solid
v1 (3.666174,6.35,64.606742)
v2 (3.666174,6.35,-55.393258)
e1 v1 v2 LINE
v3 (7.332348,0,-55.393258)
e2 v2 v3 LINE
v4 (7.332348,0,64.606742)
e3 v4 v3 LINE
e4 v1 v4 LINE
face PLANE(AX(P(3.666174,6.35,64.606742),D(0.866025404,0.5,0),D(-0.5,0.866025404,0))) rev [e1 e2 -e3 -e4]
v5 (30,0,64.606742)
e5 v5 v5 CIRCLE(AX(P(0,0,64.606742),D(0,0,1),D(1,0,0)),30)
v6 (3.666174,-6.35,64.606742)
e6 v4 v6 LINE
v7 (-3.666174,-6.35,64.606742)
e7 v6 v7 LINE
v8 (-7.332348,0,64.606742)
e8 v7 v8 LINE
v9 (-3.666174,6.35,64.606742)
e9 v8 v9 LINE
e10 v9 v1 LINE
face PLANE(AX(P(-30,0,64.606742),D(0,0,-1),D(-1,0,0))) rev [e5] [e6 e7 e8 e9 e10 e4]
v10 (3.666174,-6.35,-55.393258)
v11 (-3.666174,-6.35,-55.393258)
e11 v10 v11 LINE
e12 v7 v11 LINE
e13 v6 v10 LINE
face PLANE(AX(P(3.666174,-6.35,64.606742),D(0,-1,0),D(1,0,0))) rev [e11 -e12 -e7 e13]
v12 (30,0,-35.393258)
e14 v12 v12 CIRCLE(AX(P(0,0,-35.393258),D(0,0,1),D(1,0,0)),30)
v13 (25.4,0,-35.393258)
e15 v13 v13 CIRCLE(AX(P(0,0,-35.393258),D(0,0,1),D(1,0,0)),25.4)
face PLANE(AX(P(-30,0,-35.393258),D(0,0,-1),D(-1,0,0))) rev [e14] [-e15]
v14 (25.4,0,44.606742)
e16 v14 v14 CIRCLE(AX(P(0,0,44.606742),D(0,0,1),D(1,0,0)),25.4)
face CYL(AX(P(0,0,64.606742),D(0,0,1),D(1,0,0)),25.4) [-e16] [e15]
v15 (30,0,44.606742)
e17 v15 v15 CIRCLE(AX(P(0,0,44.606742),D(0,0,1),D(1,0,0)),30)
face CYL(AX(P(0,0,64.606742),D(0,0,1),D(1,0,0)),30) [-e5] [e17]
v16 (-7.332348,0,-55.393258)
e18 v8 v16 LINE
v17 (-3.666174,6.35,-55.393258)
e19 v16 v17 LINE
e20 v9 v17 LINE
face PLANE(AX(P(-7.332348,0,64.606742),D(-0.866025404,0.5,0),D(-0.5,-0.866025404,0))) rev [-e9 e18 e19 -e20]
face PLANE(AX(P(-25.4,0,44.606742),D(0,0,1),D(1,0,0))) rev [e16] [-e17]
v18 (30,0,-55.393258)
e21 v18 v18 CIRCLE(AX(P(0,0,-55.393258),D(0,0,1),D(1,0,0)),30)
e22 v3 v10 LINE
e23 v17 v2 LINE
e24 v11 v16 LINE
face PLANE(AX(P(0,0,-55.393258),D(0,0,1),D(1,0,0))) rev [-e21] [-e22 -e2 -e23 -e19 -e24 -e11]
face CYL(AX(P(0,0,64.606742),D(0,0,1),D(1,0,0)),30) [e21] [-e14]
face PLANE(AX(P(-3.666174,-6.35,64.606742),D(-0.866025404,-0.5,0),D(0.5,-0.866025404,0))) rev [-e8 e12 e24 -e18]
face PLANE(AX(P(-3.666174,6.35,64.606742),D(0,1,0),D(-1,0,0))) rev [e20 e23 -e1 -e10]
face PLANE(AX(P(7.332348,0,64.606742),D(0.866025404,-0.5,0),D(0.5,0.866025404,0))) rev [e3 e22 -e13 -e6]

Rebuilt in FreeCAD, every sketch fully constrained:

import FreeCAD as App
import Part
import Sketcher
from FreeCAD import Vector
Q = App.Units.Quantity

doc = App.newDocument("Part")
body = doc.addObject("PartDesign::Body", "Body")

# Sketch on XZ plane
sketch1 = body.newObject("Sketcher::SketchObject", "Sketch")
sketch1.AttachmentSupport = (doc.getObject("XZ_Plane"), [""])
sketch1.MapMode = "FlatFace"
sketch1.addGeometry(Part.LineSegment(Vector(0, -55.4, 0), Vector(-30, -55.4, 0)), False)
sketch1.addGeometry(Part.LineSegment(Vector(-30, -55.4, 0), Vector(-30, -35.4, 0)), False)
sketch1.addGeometry(Part.LineSegment(Vector(-30, -35.4, 0), Vector(-25.4, -35.4, 0)), False)
sketch1.addGeometry(Part.LineSegment(Vector(-25.4, -35.4, 0), Vector(-25.4, 44.6, 0)), False)
sketch1.addGeometry(Part.LineSegment(Vector(-25.4, 44.6, 0), Vector(-30, 44.6, 0)), False)
sketch1.addGeometry(Part.LineSegment(Vector(-30, 44.6, 0), Vector(-30, 64.6, 0)), False)
sketch1.addGeometry(Part.LineSegment(Vector(-30, 64.6, 0), Vector(0, 64.6, 0)), False)
sketch1.addGeometry(Part.LineSegment(Vector(0, 64.6, 0), Vector(0, -55.4, 0)), False)
sketch1.addConstraint(Sketcher.Constraint("Coincident", 0, 2, 1, 1))
sketch1.addConstraint(Sketcher.Constraint("Coincident", 1, 2, 2, 1))
sketch1.addConstraint(Sketcher.Constraint("Coincident", 2, 2, 3, 1))
sketch1.addConstraint(Sketcher.Constraint("Coincident", 3, 2, 4, 1))
sketch1.addConstraint(Sketcher.Constraint("Coincident", 4, 2, 5, 1))
sketch1.addConstraint(Sketcher.Constraint("Coincident", 5, 2, 6, 1))
sketch1.addConstraint(Sketcher.Constraint("Coincident", 6, 2, 7, 1))
sketch1.addConstraint(Sketcher.Constraint("Coincident", 7, 2, 0, 1))
sketch1.addConstraint(Sketcher.Constraint("Horizontal", 0))
sketch1.addConstraint(Sketcher.Constraint("Vertical", 1))
sketch1.addConstraint(Sketcher.Constraint("Horizontal", 2))
sketch1.addConstraint(Sketcher.Constraint("Vertical", 3))
sketch1.addConstraint(Sketcher.Constraint("Horizontal", 4))
sketch1.addConstraint(Sketcher.Constraint("Vertical", 5))
sketch1.addConstraint(Sketcher.Constraint("Horizontal", 6))
sketch1.addConstraint(Sketcher.Constraint("Vertical", 7))
sketch1.addConstraint(Sketcher.Constraint("PointOnObject", 6, 2, -2))
sketch1.addConstraint(Sketcher.Constraint("Vertical", 1, 2, 4, 2))
sketch1.addConstraint(Sketcher.Constraint("Equal", 1, 5))
sketch1.addConstraint(Sketcher.Constraint("DistanceX", 0, 2, 0, 1, Q("30 mm")))
sketch1.addConstraint(Sketcher.Constraint("DistanceY", 1, 1, 1, 2, Q("20 mm")))
sketch1.addConstraint(Sketcher.Constraint("DistanceY", 3, 1, 3, 2, Q("80 mm")))
sketch1.addConstraint(Sketcher.Constraint("DistanceX", 2, 1, 2, 2, Q("4.6 mm")))
sketch1.addConstraint(Sketcher.Constraint("DistanceY", 0, 2, -1, 1, Q("55.393258 mm")))
revolution = body.newObject("PartDesign::Revolution", "Revolution")
revolution.Profile = sketch1
revolution.ReferenceAxis = (sketch1, ["V_Axis"])
revolution.Angle = 360

# Sketch on XY plane
sketch2 = body.newObject("Sketcher::SketchObject", "Sketch001")
sketch2.AttachmentSupport = (doc.getObject("XY_Plane"), [""])
sketch2.MapMode = "FlatFace"
sketch2.AttachmentOffset = App.Placement(Vector(0, 0, -55.393258), App.Rotation())
sketch2.addGeometry(Part.LineSegment(Vector(-7, 0, 0), Vector(-4, 6, 0)), False)
sketch2.addGeometry(Part.LineSegment(Vector(-4, 6, 0), Vector(4, 6, 0)), False)
sketch2.addGeometry(Part.LineSegment(Vector(4, 6, 0), Vector(7, 0, 0)), False)
sketch2.addGeometry(Part.LineSegment(Vector(7, 0, 0), Vector(4, -6, 0)), False)
sketch2.addGeometry(Part.LineSegment(Vector(4, -6, 0), Vector(-4, -6, 0)), False)
sketch2.addGeometry(Part.LineSegment(Vector(-4, -6, 0), Vector(-7, 0, 0)), False)
sketch2.addConstraint(Sketcher.Constraint("Coincident", 0, 2, 1, 1))
sketch2.addConstraint(Sketcher.Constraint("Coincident", 1, 2, 2, 1))
sketch2.addConstraint(Sketcher.Constraint("Coincident", 2, 2, 3, 1))
sketch2.addConstraint(Sketcher.Constraint("Coincident", 3, 2, 4, 1))
sketch2.addConstraint(Sketcher.Constraint("Coincident", 4, 2, 5, 1))
sketch2.addConstraint(Sketcher.Constraint("Coincident", 5, 2, 0, 1))
sketch2.addConstraint(Sketcher.Constraint("Horizontal", 1))
sketch2.addConstraint(Sketcher.Constraint("Horizontal", 4))
sketch2.addConstraint(Sketcher.Constraint("Symmetric", 0, 2, 3, 2, -1, 1))
sketch2.addConstraint(Sketcher.Constraint("Symmetric", 2, 2, 5, 2, -1, 1))
sketch2.addConstraint(Sketcher.Constraint("PointOnObject", 2, 2, -1))
sketch2.addConstraint(Sketcher.Constraint("Parallel", 2, 5))
sketch2.addConstraint(Sketcher.Constraint("Vertical", 1, 2, 3, 2))
sketch2.addConstraint(Sketcher.Constraint("Angle", 0, Q("60 deg")))
sketch2.addConstraint(Sketcher.Constraint("DistanceY", 3, 2, 1, 2, Q("12.7 mm")))
sketch2.addConstraint(Sketcher.Constraint("DistanceX", 1, 1, 1, 2, Q("7.332348 mm")))
pocket1 = body.newObject("PartDesign::Pocket", "Pocket")
pocket1.Profile = sketch2
pocket1.Type = "ThroughAll"
pocket1.Reversed = True

doc.recompute()
